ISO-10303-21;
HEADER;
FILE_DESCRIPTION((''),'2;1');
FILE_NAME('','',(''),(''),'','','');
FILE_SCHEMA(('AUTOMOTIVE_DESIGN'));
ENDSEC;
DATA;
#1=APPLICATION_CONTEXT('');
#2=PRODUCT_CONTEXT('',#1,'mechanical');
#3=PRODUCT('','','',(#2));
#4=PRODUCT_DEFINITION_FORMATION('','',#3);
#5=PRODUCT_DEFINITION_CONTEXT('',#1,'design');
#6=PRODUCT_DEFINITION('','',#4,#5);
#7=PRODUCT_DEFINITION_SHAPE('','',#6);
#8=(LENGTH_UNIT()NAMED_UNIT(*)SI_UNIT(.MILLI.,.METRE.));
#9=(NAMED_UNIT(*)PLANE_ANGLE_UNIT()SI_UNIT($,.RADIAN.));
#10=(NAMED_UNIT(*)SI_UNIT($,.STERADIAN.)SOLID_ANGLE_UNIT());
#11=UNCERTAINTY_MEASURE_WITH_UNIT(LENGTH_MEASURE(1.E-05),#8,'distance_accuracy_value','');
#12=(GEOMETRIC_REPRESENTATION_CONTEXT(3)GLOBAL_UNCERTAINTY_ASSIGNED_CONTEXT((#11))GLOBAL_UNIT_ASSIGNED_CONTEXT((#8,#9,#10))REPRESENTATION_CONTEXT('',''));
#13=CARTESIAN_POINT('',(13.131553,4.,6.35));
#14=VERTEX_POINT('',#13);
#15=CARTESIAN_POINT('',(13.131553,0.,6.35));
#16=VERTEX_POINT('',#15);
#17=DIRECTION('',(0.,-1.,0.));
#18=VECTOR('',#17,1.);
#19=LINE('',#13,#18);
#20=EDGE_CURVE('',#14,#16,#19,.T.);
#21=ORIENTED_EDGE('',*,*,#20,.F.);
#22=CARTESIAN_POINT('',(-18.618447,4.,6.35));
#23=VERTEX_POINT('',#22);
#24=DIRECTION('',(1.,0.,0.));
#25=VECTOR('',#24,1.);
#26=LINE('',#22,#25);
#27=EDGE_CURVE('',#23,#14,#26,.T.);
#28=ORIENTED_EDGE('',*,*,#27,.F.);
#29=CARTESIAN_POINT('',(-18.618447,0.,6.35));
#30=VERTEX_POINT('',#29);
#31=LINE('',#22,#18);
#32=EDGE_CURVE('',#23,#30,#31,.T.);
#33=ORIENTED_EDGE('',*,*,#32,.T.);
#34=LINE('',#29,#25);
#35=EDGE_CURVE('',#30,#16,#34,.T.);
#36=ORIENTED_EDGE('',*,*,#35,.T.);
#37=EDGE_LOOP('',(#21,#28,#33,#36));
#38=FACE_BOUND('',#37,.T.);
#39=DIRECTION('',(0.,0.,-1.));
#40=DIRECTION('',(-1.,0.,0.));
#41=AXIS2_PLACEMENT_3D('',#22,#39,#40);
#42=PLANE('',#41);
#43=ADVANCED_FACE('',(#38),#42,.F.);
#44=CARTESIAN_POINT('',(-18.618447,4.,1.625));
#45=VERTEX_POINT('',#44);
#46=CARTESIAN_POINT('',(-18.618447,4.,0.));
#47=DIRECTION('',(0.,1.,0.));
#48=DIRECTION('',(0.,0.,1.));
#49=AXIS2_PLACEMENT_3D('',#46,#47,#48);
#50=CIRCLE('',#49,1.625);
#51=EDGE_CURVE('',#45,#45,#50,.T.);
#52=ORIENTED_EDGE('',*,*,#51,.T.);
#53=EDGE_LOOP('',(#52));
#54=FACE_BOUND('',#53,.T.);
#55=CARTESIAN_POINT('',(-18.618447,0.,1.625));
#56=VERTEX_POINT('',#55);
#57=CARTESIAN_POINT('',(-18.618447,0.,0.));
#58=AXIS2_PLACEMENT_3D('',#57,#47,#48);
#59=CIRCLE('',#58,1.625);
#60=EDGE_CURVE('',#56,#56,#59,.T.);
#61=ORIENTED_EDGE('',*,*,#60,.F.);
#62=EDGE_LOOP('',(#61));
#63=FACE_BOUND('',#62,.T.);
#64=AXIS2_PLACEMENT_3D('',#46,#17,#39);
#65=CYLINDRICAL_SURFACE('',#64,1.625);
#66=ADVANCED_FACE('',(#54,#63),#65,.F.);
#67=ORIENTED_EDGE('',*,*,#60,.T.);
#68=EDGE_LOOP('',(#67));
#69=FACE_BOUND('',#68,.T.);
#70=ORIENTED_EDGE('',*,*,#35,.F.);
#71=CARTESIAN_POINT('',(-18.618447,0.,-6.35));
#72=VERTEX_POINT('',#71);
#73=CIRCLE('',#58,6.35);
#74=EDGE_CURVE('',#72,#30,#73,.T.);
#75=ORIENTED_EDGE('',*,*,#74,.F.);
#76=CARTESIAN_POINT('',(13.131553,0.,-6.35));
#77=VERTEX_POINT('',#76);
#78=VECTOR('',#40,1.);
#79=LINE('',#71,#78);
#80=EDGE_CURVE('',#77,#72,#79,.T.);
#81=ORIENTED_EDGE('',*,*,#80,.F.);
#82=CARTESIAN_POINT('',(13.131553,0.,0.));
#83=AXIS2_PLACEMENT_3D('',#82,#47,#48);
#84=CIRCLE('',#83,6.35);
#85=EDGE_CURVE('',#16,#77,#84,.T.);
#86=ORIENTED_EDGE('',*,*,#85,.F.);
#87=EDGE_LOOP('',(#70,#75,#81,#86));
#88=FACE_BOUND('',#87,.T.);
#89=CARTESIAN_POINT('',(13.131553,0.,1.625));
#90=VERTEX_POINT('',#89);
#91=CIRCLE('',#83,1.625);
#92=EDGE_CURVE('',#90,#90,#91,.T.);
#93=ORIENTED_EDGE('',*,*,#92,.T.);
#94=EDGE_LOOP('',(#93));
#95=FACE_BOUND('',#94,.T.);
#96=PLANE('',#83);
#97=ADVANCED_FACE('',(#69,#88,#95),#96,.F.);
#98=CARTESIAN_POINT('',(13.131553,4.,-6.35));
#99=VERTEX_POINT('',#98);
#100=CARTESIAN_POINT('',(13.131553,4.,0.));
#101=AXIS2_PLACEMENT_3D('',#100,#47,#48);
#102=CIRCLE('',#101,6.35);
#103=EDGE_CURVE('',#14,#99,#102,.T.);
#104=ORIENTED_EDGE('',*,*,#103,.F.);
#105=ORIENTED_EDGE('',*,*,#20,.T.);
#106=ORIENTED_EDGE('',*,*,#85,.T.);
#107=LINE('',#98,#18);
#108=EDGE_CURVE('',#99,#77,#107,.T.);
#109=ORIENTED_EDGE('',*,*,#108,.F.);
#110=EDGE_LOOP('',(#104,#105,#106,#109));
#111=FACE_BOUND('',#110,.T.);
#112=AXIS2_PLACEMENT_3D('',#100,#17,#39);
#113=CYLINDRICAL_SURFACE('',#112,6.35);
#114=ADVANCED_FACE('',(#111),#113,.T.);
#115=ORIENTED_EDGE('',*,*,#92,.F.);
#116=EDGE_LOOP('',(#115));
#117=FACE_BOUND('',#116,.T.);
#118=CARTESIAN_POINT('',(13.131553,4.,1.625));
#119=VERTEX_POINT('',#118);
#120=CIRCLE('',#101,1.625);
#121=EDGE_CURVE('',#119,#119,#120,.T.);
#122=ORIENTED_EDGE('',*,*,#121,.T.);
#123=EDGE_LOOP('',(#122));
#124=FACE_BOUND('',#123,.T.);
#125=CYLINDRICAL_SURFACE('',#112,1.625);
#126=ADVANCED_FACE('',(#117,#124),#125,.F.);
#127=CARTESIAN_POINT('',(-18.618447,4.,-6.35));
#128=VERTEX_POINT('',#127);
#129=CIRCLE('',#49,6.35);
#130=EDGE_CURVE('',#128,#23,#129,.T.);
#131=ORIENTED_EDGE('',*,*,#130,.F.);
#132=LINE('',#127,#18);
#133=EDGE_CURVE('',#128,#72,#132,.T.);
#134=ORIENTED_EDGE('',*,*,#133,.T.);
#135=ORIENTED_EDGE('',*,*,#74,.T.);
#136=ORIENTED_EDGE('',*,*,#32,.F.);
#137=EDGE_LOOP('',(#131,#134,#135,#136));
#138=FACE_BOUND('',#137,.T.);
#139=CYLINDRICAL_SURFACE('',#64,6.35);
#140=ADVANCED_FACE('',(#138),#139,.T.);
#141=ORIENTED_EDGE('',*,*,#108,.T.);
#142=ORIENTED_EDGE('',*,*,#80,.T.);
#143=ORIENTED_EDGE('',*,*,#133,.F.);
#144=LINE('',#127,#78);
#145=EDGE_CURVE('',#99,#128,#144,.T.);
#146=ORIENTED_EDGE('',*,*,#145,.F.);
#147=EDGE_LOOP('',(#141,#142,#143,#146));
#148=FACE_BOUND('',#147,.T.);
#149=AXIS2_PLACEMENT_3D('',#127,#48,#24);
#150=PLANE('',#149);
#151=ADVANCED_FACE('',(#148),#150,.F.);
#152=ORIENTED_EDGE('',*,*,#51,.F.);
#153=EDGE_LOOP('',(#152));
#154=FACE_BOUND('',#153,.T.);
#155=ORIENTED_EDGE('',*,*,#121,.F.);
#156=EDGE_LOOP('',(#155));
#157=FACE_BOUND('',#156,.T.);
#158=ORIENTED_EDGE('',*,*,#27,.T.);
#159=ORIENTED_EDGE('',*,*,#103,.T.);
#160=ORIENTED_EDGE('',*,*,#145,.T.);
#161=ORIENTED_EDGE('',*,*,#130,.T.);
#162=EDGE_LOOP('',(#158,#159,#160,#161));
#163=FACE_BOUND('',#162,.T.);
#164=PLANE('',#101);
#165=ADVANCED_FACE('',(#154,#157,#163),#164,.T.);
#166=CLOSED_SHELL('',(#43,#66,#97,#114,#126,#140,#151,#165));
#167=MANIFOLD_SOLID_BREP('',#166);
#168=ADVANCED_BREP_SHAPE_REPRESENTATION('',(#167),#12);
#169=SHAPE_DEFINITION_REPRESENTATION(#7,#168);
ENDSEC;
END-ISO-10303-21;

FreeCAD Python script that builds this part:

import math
import FreeCAD as App
import Part
import Sketcher
from FreeCAD import Vector
Q = App.Units.Quantity

doc = App.newDocument("Part")
params = doc.addObject("Spreadsheet::Sheet", "Params")
for row, (alias, value) in enumerate([
    ("sketch1_radius", "0.25 in"),
    ("sketch1_width", "1.25 in"),
    ("pad1_length", "4 mm"),
], start=1):
    params.set(f"A{row}", alias)
    params.set(f"B{row}", "=" + value)
    params.setAlias(f"B{row}", alias)

body = doc.addObject("PartDesign::Body", "Body")

sketch1 = body.newObject("Sketcher::SketchObject", "Sketch")
sketch1.AttachmentSupport = (doc.getObject("XZ_Plane"), [""])
sketch1.MapMode = "FlatFace"
sketch1.addGeometry([
    Part.LineSegment(Vector(-18.6, 6.3, 0), Vector(13.1, 6.3, 0)),
    Part.ArcOfCircle(Part.Circle(Vector(13.1, 0, 0), Vector(0, 0, 1), 6.3), math.radians(-90), math.radians(90)),
    Part.LineSegment(Vector(13.1, -6.3, 0), Vector(-18.6, -6.3, 0)),
    Part.ArcOfCircle(Part.Circle(Vector(-18.6, 0, 0), Vector(0, 0, 1), 6.3), math.radians(90), math.radians(270)),
    Part.Circle(Vector(-18.6, 0, 0), Vector(0, 0, 1), 1.6),
    Part.Circle(Vector(13.1, 0, 0), Vector(0, 0, 1), 1.6),
], False)
sketch1.addConstraint([
    Sketcher.Constraint("Tangent", 0, 2, 1, 2),
    Sketcher.Constraint("Tangent", 1, 1, 2, 1),
    Sketcher.Constraint("Tangent", 2, 2, 3, 2),
    Sketcher.Constraint("Tangent", 3, 1, 0, 1),
    Sketcher.Constraint("Horizontal", 0),
    Sketcher.Constraint("Horizontal", 2),
    Sketcher.Constraint("Coincident", 4, 3, 3, 3),
    Sketcher.Constraint("Coincident", 5, 3, 1, 3),
    Sketcher.Constraint("Equal", 4, 5),
    Sketcher.Constraint("PointOnObject", 1, 3, -1),
    Sketcher.Constraint("Radius", 1, Q("0.25 in")),
    Sketcher.Constraint("DistanceX", 0, 1, 0, 2, Q("1.25 in")),
    Sketcher.Constraint("Diameter", 4, Q("3.25 mm")),
    Sketcher.Constraint("DistanceX", -1, 1, 1, 3, Q("13.131553 mm")),
])
sketch1.setExpression("Constraints[10]", "Params.sketch1_radius")
sketch1.setExpression("Constraints[11]", "Params.sketch1_width")
pad1 = body.newObject("PartDesign::Pad", "Pad")
pad1.Profile = sketch1
pad1.setExpression("Length", "Params.pad1_length")
pad1.Reversed = True

doc.recompute()
